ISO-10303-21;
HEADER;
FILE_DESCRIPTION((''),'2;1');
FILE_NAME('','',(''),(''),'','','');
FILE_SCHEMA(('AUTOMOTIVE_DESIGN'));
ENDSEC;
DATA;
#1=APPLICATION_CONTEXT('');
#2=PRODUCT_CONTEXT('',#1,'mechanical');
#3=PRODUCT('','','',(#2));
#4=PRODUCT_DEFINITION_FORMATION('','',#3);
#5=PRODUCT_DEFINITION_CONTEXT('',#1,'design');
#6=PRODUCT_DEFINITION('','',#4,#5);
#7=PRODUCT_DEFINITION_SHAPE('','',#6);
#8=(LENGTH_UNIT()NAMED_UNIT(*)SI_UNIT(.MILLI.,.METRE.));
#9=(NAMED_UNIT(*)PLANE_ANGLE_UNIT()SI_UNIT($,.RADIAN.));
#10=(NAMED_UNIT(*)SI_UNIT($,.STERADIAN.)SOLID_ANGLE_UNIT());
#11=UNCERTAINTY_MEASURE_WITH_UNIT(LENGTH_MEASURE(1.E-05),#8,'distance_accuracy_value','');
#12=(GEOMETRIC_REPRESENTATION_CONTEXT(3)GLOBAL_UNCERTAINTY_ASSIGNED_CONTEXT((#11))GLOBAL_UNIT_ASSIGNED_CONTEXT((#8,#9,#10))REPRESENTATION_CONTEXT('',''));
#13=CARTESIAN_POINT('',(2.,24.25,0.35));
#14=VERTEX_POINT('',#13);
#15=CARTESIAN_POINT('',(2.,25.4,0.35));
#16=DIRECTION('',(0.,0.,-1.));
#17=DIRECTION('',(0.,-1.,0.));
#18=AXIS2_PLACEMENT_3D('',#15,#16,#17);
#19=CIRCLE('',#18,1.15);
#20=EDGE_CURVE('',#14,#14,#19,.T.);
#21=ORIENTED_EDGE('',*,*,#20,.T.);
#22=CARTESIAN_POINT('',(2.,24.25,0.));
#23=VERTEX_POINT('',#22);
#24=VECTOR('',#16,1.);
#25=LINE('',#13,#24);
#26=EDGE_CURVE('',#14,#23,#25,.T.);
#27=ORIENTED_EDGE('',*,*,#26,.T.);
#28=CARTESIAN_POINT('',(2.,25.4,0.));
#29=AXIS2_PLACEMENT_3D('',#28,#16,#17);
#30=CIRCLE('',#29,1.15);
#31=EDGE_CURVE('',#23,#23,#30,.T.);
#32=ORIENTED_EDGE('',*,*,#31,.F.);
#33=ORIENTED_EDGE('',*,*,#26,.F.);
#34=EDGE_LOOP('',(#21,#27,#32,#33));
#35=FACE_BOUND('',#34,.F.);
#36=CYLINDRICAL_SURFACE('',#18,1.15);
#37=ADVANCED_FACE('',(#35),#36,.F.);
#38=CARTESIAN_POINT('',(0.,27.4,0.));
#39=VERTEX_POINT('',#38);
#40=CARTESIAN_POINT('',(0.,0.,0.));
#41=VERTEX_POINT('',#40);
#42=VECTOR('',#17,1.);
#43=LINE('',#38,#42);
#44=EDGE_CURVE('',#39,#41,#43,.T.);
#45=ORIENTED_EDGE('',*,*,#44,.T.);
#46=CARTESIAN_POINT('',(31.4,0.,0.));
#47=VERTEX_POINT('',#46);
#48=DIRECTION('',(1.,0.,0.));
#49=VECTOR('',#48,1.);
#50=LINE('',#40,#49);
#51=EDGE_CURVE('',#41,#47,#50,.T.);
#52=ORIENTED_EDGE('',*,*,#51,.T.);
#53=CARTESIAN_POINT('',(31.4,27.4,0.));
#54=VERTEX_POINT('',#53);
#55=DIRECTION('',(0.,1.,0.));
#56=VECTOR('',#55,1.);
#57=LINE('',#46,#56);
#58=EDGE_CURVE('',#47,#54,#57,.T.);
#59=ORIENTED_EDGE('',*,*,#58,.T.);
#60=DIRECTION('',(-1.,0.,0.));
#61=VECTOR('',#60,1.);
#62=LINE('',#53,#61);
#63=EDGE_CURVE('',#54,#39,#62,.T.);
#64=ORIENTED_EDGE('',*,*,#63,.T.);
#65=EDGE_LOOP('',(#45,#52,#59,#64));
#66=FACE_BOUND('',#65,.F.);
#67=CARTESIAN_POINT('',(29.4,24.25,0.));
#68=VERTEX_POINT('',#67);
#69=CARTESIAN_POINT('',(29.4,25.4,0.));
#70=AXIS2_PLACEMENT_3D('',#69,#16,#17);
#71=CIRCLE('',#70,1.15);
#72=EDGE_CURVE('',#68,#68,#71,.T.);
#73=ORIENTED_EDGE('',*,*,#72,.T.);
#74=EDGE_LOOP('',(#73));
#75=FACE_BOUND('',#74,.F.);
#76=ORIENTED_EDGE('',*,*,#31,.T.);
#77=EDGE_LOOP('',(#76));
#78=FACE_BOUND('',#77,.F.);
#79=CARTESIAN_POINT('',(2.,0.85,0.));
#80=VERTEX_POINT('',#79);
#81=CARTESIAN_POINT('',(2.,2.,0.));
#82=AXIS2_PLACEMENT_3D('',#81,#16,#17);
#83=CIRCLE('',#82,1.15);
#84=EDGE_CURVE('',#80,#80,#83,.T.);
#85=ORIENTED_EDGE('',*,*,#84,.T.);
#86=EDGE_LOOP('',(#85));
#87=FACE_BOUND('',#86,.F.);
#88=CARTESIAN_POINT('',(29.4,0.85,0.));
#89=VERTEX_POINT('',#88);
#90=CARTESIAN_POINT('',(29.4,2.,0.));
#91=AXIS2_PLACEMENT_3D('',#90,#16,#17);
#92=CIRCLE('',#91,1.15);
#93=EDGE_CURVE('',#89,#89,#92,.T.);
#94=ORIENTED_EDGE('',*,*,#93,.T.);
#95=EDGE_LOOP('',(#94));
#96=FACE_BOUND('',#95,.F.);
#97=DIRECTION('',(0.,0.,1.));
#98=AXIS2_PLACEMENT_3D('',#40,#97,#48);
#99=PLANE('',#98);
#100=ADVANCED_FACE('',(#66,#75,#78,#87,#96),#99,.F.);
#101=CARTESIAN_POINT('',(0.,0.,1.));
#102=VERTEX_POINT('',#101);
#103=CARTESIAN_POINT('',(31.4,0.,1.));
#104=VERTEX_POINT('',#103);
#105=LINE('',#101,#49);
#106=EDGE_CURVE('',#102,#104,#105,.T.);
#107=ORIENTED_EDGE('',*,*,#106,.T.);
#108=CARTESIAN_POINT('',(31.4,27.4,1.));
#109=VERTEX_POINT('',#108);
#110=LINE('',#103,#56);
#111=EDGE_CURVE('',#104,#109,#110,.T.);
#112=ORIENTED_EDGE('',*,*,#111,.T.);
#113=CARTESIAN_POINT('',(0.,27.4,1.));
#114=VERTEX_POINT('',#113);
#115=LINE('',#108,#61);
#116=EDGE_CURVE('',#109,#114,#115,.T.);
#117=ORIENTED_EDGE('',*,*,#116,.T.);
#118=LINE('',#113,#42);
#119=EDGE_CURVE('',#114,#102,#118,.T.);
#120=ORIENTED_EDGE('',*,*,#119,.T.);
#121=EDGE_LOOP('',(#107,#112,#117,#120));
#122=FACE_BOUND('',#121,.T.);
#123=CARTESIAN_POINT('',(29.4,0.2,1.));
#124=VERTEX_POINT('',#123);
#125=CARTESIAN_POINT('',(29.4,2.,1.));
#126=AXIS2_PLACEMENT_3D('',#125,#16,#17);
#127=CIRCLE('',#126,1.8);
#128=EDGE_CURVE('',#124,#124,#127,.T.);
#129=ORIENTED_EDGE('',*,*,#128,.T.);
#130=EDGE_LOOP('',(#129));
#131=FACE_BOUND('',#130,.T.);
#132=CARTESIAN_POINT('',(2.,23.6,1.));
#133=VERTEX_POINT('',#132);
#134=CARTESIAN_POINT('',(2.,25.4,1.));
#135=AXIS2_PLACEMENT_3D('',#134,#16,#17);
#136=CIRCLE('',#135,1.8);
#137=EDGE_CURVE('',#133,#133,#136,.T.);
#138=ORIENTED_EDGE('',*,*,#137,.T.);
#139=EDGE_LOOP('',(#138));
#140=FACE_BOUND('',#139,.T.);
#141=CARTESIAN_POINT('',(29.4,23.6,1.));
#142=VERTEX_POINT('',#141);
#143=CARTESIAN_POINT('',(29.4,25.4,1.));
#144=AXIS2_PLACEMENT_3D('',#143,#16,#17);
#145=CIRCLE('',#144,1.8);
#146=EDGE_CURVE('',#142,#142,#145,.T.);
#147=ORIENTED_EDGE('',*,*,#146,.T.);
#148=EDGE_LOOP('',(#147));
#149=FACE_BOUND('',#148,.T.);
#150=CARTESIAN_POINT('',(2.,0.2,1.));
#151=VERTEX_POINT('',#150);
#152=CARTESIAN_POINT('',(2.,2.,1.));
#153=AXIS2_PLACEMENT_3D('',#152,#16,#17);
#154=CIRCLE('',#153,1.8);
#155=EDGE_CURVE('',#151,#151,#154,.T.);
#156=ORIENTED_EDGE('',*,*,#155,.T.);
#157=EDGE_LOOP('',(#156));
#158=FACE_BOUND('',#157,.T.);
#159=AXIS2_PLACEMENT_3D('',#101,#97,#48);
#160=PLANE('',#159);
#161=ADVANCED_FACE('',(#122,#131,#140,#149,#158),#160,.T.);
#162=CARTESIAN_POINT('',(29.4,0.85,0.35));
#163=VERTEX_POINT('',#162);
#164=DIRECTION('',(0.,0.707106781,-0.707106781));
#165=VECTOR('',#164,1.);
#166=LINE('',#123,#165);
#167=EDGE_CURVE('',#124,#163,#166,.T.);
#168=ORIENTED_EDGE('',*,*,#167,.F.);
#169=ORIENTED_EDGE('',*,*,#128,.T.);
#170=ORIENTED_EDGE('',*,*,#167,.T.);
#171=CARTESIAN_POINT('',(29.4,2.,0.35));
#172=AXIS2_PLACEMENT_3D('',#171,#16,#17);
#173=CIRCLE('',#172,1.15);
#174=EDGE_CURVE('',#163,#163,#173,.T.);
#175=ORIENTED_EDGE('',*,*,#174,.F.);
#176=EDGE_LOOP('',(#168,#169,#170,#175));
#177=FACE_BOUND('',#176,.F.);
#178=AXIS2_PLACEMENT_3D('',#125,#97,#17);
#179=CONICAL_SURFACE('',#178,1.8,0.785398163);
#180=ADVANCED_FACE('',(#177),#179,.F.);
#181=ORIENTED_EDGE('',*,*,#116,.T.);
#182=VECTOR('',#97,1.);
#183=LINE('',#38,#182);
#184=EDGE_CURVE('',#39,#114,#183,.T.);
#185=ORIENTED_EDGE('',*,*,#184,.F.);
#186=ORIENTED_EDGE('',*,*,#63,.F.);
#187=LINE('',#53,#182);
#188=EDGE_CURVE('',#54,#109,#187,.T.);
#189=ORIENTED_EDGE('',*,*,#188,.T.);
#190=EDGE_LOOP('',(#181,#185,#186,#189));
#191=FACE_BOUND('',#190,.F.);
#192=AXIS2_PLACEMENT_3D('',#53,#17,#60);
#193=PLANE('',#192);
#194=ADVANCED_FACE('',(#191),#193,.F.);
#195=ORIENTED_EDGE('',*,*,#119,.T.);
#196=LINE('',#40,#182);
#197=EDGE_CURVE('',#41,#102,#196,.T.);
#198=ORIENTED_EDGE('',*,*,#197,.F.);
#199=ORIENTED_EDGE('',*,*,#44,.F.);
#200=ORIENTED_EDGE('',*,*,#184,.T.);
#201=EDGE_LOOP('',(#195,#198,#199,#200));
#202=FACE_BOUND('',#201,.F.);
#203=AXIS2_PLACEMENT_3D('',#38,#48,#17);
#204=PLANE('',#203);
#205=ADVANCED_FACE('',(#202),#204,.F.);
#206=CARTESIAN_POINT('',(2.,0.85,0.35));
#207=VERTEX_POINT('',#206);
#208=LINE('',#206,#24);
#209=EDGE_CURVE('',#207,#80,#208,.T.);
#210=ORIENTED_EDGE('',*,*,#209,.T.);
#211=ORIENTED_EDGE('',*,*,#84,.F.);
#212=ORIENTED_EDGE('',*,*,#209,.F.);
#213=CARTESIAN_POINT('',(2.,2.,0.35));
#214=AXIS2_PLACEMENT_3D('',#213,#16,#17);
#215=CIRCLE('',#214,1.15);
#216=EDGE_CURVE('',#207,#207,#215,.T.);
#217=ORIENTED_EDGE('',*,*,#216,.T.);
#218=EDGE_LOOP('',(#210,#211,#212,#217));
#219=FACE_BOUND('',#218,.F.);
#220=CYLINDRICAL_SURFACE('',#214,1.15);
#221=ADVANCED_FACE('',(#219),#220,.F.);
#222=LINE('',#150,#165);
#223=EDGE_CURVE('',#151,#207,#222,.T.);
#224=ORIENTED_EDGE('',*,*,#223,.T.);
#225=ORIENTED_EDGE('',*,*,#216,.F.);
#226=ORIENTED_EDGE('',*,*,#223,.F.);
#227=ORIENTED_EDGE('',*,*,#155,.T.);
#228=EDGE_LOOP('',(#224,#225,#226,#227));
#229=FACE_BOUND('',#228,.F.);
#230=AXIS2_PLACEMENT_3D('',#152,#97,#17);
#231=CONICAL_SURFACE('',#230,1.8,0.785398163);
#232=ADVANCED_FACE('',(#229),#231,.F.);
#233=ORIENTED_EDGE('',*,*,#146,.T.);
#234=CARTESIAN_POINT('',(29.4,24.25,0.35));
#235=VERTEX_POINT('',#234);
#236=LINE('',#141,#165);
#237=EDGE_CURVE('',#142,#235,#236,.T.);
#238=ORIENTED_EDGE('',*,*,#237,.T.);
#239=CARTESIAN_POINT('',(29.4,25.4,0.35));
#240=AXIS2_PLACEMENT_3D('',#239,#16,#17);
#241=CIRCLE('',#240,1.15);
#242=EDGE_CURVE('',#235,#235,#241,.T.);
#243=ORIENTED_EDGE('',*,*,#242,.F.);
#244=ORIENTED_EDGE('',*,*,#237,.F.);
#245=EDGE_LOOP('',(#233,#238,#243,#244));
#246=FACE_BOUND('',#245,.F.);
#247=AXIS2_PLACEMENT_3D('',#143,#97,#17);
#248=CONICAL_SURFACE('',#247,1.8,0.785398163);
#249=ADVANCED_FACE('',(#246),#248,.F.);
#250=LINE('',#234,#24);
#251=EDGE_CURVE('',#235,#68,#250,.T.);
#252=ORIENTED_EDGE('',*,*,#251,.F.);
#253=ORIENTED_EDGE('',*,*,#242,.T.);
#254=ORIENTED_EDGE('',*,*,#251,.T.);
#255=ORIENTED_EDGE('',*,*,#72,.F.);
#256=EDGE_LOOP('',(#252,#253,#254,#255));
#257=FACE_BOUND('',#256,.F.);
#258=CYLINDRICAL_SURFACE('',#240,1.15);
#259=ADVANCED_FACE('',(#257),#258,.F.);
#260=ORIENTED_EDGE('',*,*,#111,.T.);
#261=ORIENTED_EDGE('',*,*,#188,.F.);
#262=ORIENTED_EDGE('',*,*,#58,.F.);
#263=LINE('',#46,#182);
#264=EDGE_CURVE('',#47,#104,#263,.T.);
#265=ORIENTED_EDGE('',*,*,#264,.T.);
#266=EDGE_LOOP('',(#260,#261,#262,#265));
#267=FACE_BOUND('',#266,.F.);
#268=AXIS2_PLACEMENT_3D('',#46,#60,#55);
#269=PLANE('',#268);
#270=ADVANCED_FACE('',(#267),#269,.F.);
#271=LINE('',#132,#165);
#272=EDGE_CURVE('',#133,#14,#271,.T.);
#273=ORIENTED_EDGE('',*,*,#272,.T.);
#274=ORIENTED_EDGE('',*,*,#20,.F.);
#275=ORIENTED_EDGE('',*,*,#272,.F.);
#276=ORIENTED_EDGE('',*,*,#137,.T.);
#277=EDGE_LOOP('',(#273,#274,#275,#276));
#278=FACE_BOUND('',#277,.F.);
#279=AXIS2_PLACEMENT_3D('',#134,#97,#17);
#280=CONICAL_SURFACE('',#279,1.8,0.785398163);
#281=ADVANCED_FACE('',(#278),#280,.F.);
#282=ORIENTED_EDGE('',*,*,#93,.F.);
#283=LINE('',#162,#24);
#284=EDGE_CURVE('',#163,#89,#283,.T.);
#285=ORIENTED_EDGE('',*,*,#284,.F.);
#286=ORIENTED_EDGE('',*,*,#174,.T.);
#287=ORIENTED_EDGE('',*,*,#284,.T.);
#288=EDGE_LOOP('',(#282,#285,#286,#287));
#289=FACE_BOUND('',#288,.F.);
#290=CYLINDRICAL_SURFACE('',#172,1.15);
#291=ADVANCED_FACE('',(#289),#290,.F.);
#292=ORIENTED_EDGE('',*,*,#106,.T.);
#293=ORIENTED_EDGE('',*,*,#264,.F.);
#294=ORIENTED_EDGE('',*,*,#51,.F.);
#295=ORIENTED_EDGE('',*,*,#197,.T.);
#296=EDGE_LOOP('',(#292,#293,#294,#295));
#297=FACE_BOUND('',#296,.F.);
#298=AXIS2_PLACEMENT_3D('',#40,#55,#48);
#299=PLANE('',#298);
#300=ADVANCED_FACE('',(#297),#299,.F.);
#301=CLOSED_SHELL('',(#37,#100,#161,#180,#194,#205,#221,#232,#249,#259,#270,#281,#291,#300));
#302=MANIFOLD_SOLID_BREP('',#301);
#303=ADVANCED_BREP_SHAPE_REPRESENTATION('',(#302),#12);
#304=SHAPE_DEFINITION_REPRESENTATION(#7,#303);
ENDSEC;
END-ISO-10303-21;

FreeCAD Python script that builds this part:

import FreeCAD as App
import Part
import Sketcher

doc = App.newDocument("Part")
body = doc.addObject("PartDesign::Body", "Body")

# Sketch on XY plane
sketch1 = body.newObject("Sketcher::SketchObject", "Sketch")
sketch1.AttachmentSupport = (doc.getObject("XY_Plane"), [""])
sketch1.MapMode = "FlatFace"
sketch1.addGeometry([
    Part.LineSegment(App.Vector(0, 27, 0), App.Vector(0, 0, 0)),
    Part.LineSegment(App.Vector(0, 0, 0), App.Vector(31, 0, 0)),
    Part.LineSegment(App.Vector(31, 0, 0), App.Vector(31, 27, 0)),
    Part.LineSegment(App.Vector(31, 27, 0), App.Vector(0, 27, 0)),
], False)
sketch1.addConstraint([
    Sketcher.Constraint("Coincident", 0, 2, 1, 1),
    Sketcher.Constraint("Coincident", 1, 2, 2, 1),
    Sketcher.Constraint("Coincident", 2, 2, 3, 1),
    Sketcher.Constraint("Coincident", 3, 2, 0, 1),
    Sketcher.Constraint("Vertical", 0),
    Sketcher.Constraint("Horizontal", 1),
    Sketcher.Constraint("Vertical", 2),
    Sketcher.Constraint("Horizontal", 3),
    Sketcher.Constraint("Coincident", 0, 2, -1, 1),
    Sketcher.Constraint("DistanceX", 1, 1, 1, 2, 31.4),
    Sketcher.Constraint("DistanceY", 0, 2, 0, 1, 27.4),
])
pad1 = body.newObject("PartDesign::Pad", "Pad")
pad1.Profile = sketch1
pad1.Length = 1

# Sketch on XY plane
sketch2 = body.newObject("Sketcher::SketchObject", "Sketch001")
sketch2.AttachmentSupport = (doc.getObject("XY_Plane"), [""])
sketch2.MapMode = "FlatFace"
sketch2.AttachmentOffset = App.Placement(App.Vector(0, 0, 1), App.Rotation())
sketch2.addGeometry([
    Part.Circle(App.Vector(2, 25.4, 0), App.Vector(0, 0, 1), 1.1),
    Part.Circle(App.Vector(29.4, 25.4, 0), App.Vector(0, 0, 1), 1.1),
    Part.Circle(App.Vector(29.4, 2, 0), App.Vector(0, 0, 1), 1.1),
    Part.Circle(App.Vector(2, 2, 0), App.Vector(0, 0, 1), 1.1),
], False)
sketch2.addConstraint([
    Sketcher.Constraint("Equal", 0, 1),
    Sketcher.Constraint("Equal", 1, 2),
    Sketcher.Constraint("Equal", 2, 3),
    Sketcher.Constraint("Horizontal", 0, 3, 1, 3),
    Sketcher.Constraint("Horizontal", 2, 3, 3, 3),
    Sketcher.Constraint("Vertical", 1, 3, 2, 3),
    Sketcher.Constraint("Vertical", 0, 3, 3, 3),
    Sketcher.Constraint("Diameter", 0, 2.3),
    Sketcher.Constraint("DistanceX", -1, 1, 0, 3, 2.0),
    Sketcher.Constraint("DistanceY", -1, 1, 2, 3, 2.0),
    Sketcher.Constraint("DistanceY", -1, 1, 0, 3, 25.4),
    Sketcher.Constraint("DistanceX", -1, 1, 1, 3, 29.4),
])
doc.recompute()
hole = body.newObject("PartDesign::Hole", "Hole")
hole.Profile = sketch2
hole.ThreadType = "None"
hole.Diameter = 2.3
hole.DepthType = "ThroughAll"
hole.HoleCutType = "Countersink"
hole.HoleCutDiameter = 3.6
hole.HoleCutCountersinkAngle = 90

doc.recompute()
